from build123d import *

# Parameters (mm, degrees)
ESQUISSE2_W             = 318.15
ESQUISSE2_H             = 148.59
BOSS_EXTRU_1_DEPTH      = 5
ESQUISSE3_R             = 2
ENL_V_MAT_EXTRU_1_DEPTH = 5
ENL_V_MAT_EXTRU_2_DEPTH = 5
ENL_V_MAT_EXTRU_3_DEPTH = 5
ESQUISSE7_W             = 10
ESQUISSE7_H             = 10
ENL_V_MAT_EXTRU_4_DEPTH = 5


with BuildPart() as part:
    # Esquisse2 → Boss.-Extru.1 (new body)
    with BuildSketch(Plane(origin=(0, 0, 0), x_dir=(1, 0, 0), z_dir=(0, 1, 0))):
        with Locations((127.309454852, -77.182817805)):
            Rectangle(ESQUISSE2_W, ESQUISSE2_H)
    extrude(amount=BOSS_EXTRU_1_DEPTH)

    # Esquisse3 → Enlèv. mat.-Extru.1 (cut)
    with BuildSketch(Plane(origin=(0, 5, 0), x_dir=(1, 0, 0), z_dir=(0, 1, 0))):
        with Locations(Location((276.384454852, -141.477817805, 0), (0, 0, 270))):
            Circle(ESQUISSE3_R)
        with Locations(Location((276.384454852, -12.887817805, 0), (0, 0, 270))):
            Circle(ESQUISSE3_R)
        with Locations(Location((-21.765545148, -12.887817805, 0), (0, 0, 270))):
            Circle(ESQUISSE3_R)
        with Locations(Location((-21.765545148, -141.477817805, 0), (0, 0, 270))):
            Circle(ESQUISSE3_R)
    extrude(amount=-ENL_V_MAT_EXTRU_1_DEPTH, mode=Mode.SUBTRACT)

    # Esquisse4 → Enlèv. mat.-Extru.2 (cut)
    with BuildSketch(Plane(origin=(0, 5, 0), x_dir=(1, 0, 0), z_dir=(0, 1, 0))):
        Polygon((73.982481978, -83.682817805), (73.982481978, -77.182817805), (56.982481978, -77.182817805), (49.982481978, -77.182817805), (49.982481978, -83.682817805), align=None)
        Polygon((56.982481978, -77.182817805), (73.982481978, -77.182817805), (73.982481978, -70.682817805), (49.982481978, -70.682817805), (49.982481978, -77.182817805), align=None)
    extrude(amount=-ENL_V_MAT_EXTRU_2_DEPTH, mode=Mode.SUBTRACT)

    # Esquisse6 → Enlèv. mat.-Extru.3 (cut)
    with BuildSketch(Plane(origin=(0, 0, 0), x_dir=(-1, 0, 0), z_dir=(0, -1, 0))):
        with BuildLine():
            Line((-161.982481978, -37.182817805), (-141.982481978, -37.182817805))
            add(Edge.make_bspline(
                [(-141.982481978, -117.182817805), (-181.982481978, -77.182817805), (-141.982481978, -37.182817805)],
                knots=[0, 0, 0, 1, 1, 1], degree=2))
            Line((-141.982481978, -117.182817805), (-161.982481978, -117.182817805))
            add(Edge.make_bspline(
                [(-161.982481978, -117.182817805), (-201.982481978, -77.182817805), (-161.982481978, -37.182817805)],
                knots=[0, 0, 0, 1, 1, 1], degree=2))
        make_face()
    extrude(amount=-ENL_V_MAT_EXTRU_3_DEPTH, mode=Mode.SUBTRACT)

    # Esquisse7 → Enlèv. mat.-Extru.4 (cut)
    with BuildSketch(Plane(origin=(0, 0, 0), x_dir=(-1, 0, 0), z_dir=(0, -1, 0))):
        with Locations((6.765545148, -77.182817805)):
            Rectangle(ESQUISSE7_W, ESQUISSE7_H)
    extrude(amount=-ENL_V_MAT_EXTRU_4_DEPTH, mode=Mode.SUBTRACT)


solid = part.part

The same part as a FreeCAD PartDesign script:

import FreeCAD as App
import Part
import Sketcher
Q = App.Units.Quantity


def add_polygon(sketch, points):
    """Adds a closed chain of lines whose ends are joined by coincident constraints."""
    first, n = sketch.GeometryCount, len(points)
    for a, b in zip(points, points[1:] + points[:1]):
        sketch.addGeometry(Part.LineSegment(App.Vector(*a, 0), App.Vector(*b, 0)), False)
    for i in range(n):
        sketch.addConstraint(Sketcher.Constraint("Coincident", first + i, 2, first + (i + 1) % n, 1))

doc = App.newDocument("Part")
body = doc.addObject("PartDesign::Body", "Body")

sketch1 = body.newObject("Sketcher::SketchObject", "Sketch")
sketch1.AttachmentSupport = (doc.getObject("XZ_Plane"), [""])
sketch1.MapMode = "FlatFace"
add_polygon(sketch1, [(-31.765545, 2.887818), (-31.765545, 151.477818), (286.384455, 151.477818), (286.384455, 2.887818)])
sketch1.addConstraint([
    Sketcher.Constraint("Vertical", 0),
    Sketcher.Constraint("Horizontal", 1),
    Sketcher.Constraint("Vertical", 2),
    Sketcher.Constraint("Horizontal", 3),
    Sketcher.Constraint("DistanceX", 1, 1, 1, 2, Q("318.15 mm")),
    Sketcher.Constraint("DistanceY", 0, 1, 0, 2, Q("148.59 mm")),
    Sketcher.Constraint("DistanceX", 0, 2, -1, 1, Q("31.765545 mm")),
    Sketcher.Constraint("DistanceY", -1, 1, 0, 2, Q("151.477818 mm")),
])
pad1 = body.newObject("PartDesign::Pad", "Pad")
pad1.Profile = sketch1
pad1.Length = 5
pad1.Reversed = True

sketch2 = body.newObject("Sketcher::SketchObject", "Sketch001")
sketch2.AttachmentSupport = (doc.getObject("XZ_Plane"), [""])
sketch2.MapMode = "FlatFace"
sketch2.AttachmentOffset = App.Placement(App.Vector(0, 0, -5), App.Rotation())
sketch2.addGeometry([
    Part.Circle(App.Vector(276.384455, 141.477818, 0), App.Vector(0, 0, 1), 2),
    Part.Circle(App.Vector(276.384455, 12.887818, 0), App.Vector(0, 0, 1), 2),
    Part.Circle(App.Vector(-21.765545, 12.887818, 0), App.Vector(0, 0, 1), 2),
    Part.Circle(App.Vector(-21.765545, 141.477818, 0), App.Vector(0, 0, 1), 2),
], False)
sketch2.addConstraint([
    Sketcher.Constraint("Equal", 0, 1),
    Sketcher.Constraint("Equal", 1, 2),
    Sketcher.Constraint("Equal", 2, 3),
    Sketcher.Constraint("Horizontal", 1, 3, 2, 3),
    Sketcher.Constraint("Horizontal", 0, 3, 3, 3),
    Sketcher.Constraint("Vertical", 0, 3, 1, 3),
    Sketcher.Constraint("Vertical", 2, 3, 3, 3),
    Sketcher.Constraint("Diameter", 0, Q("4 mm")),
    Sketcher.Constraint("DistanceY", 1, 3, 0, 3, Q("128.59 mm")),
    Sketcher.Constraint("DistanceX", 2, 3, 1, 3, Q("298.15 mm")),
    Sketcher.Constraint("DistanceX", -1, 1, 0, 3, Q("276.384455 mm")),
    Sketcher.Constraint("DistanceY", -1, 1, 0, 3, Q("141.477818 mm")),
])
pocket1 = body.newObject("PartDesign::Pocket", "Pocket")
pocket1.Profile = sketch2
pocket1.Length = 5
pocket1.Reversed = True

sketch3 = body.newObject("Sketcher::SketchObject", "Sketch002")
sketch3.AttachmentSupport = (doc.getObject("XZ_Plane"), [""])
sketch3.MapMode = "FlatFace"
sketch3.AttachmentOffset = App.Placement(App.Vector(0, 0, -5), App.Rotation())
add_polygon(sketch3, [(73.982482, 83.682818), (73.982482, 70.682818), (49.982482, 70.682818), (49.982482, 83.682818)])
sketch3.addConstraint([
    Sketcher.Constraint("Vertical", 0),
    Sketcher.Constraint("Horizontal", 1),
    Sketcher.Constraint("Vertical", 2),
    Sketcher.Constraint("Horizontal", 3),
    Sketcher.Constraint("DistanceX", 1, 2, 1, 1, Q("24 mm")),
    Sketcher.Constraint("DistanceY", 0, 2, 0, 1, Q("13 mm")),
    Sketcher.Constraint("DistanceX", -1, 1, 0, 2, Q("73.982482 mm")),
    Sketcher.Constraint("DistanceY", -1, 1, 0, 2, Q("70.682818 mm")),
])
pocket2 = body.newObject("PartDesign::Pocket", "Pocket001")
pocket2.Profile = sketch3
pocket2.Length = 5
pocket2.Reversed = True

sketch4 = body.newObject("Sketcher::SketchObject", "Sketch003")
sketch4.AttachmentSupport = (doc.getObject("XZ_Plane"), [""])
sketch4.MapMode = "FlatFace"
sketch4.addGeometry([
    Part.LineSegment(App.Vector(141.982482, 37.182818, 0), App.Vector(161.982482, 37.182818, 0)),
    Part.BSplineCurve([App.Vector(161.982482, 117.182818, 0), App.Vector(201.982482, 77.182818, 0), App.Vector(161.982482, 37.182818, 0)], [3, 3], [0, 1], False, 2, [1, 1, 1], False),
    Part.LineSegment(App.Vector(161.982482, 117.182818, 0), App.Vector(141.982482, 117.182818, 0)),
    Part.BSplineCurve([App.Vector(141.982482, 117.182818, 0), App.Vector(181.982482, 77.182818, 0), App.Vector(141.982482, 37.182818, 0)], [3, 3], [0, 1], False, 2, [1, 1, 1], False),
], False)
sketch4.addConstraint([
    Sketcher.Constraint("Block", 1),
    Sketcher.Constraint("Block", 3),
    Sketcher.Constraint("Coincident", 0, 2, 1, 2),
    Sketcher.Constraint("Coincident", 1, 1, 2, 1),
    Sketcher.Constraint("Coincident", 2, 2, 3, 1),
    Sketcher.Constraint("Coincident", 3, 2, 0, 1),
])
pocket3 = body.newObject("PartDesign::Pocket", "Pocket002")
pocket3.Profile = sketch4
pocket3.Length = 5

sketch5 = body.newObject("Sketcher::SketchObject", "Sketch004")
sketch5.AttachmentSupport = (doc.getObject("XZ_Plane"), [""])
sketch5.MapMode = "FlatFace"
add_polygon(sketch5, [(-1.765545, 72.182818), (-1.765545, 82.182818), (-11.765545, 82.182818), (-11.765545, 72.182818)])
sketch5.addConstraint([
    Sketcher.Constraint("Vertical", 0),
    Sketcher.Constraint("Horizontal", 1),
    Sketcher.Constraint("Vertical", 2),
    Sketcher.Constraint("Horizontal", 3),
    Sketcher.Constraint("Equal", 3, 0),
    Sketcher.Constraint("DistanceX", 1, 2, 1, 1, Q("10 mm")),
    Sketcher.Constraint("DistanceX", 0, 2, -1, 1, Q("1.765545 mm")),
    Sketcher.Constraint("DistanceY", -1, 1, 0, 2, Q("82.182818 mm")),
])
pocket4 = body.newObject("PartDesign::Pocket", "Pocket003")
pocket4.Profile = sketch5
pocket4.Length = 5

doc.recompute()
